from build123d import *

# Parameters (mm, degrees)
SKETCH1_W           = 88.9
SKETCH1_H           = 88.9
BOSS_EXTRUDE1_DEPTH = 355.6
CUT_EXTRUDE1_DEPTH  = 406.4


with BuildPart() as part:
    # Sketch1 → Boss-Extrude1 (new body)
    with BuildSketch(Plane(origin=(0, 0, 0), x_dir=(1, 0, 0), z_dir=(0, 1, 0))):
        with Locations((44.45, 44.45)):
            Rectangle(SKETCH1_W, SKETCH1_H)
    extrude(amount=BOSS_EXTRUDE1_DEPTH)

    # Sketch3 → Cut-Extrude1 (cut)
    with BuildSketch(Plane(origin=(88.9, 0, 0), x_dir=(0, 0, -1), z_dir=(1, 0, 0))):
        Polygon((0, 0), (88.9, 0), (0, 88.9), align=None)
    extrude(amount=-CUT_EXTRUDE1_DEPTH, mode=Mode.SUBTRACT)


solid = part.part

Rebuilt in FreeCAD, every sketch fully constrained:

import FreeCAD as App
import Part
import Sketcher
from FreeCAD import Vector
Q = App.Units.Quantity


def add_polygon(sketch, points):
    """Adds a closed chain of lines whose ends are joined by coincident constraints."""
    first, n = sketch.GeometryCount, len(points)
    for a, b in zip(points, points[1:] + points[:1]):
        sketch.addGeometry(Part.LineSegment(App.Vector(*a, 0), App.Vector(*b, 0)), False)
    for i in range(n):
        sketch.addConstraint(Sketcher.Constraint("Coincident", first + i, 2, first + (i + 1) % n, 1))

doc = App.newDocument("Part")
body = doc.addObject("PartDesign::Body", "Body")

# Sketch on XZ plane
sketch1 = body.newObject("Sketcher::SketchObject", "Sketch")
sketch1.AttachmentSupport = (doc.getObject("XZ_Plane"), [""])
sketch1.MapMode = "FlatFace"
add_polygon(sketch1, [(0, -89), (0, 0), (89, 0), (89, -89)])  # lines 0-3
sketch1.addConstraint([
    Sketcher.Constraint("Vertical", 0),
    Sketcher.Constraint("Horizontal", 1),
    Sketcher.Constraint("Vertical", 2),
    Sketcher.Constraint("Horizontal", 3),
    Sketcher.Constraint("Coincident", 0, 2, -1, 1),
    Sketcher.Constraint("Equal", 3, 0),
    Sketcher.Constraint("DistanceX", 1, 1, 1, 2, Q("3.5 in")),
])
pad1 = body.newObject("PartDesign::Pad", "Pad")
pad1.Profile = sketch1
pad1.Length = Q("14 in")
pad1.Reversed = True

# Sketch on YZ plane
sketch2 = body.newObject("Sketcher::SketchObject", "Sketch001")
sketch2.AttachmentSupport = (doc.getObject("YZ_Plane"), [""])
sketch2.MapMode = "FlatFace"
sketch2.AttachmentOffset = App.Placement(Vector(0, 0, 3.5 * 25.4), App.Rotation())
add_polygon(sketch2, [(0, 0), (0, -89), (89, 0)])  # lines 0-2
sketch2.addConstraint([
    Sketcher.Constraint("Vertical", 0),
    Sketcher.Constraint("Horizontal", 2),
    Sketcher.Constraint("Coincident", 2, 2, -1, 1),
    Sketcher.Constraint("Equal", 2, 0),
    Sketcher.Constraint("DistanceX", 2, 2, 2, 1, Q("3.5 in")),
])
pocket1 = body.newObject("PartDesign::Pocket", "Pocket")
pocket1.Profile = sketch2
pocket1.Length = Q("16 in")

doc.recompute()
